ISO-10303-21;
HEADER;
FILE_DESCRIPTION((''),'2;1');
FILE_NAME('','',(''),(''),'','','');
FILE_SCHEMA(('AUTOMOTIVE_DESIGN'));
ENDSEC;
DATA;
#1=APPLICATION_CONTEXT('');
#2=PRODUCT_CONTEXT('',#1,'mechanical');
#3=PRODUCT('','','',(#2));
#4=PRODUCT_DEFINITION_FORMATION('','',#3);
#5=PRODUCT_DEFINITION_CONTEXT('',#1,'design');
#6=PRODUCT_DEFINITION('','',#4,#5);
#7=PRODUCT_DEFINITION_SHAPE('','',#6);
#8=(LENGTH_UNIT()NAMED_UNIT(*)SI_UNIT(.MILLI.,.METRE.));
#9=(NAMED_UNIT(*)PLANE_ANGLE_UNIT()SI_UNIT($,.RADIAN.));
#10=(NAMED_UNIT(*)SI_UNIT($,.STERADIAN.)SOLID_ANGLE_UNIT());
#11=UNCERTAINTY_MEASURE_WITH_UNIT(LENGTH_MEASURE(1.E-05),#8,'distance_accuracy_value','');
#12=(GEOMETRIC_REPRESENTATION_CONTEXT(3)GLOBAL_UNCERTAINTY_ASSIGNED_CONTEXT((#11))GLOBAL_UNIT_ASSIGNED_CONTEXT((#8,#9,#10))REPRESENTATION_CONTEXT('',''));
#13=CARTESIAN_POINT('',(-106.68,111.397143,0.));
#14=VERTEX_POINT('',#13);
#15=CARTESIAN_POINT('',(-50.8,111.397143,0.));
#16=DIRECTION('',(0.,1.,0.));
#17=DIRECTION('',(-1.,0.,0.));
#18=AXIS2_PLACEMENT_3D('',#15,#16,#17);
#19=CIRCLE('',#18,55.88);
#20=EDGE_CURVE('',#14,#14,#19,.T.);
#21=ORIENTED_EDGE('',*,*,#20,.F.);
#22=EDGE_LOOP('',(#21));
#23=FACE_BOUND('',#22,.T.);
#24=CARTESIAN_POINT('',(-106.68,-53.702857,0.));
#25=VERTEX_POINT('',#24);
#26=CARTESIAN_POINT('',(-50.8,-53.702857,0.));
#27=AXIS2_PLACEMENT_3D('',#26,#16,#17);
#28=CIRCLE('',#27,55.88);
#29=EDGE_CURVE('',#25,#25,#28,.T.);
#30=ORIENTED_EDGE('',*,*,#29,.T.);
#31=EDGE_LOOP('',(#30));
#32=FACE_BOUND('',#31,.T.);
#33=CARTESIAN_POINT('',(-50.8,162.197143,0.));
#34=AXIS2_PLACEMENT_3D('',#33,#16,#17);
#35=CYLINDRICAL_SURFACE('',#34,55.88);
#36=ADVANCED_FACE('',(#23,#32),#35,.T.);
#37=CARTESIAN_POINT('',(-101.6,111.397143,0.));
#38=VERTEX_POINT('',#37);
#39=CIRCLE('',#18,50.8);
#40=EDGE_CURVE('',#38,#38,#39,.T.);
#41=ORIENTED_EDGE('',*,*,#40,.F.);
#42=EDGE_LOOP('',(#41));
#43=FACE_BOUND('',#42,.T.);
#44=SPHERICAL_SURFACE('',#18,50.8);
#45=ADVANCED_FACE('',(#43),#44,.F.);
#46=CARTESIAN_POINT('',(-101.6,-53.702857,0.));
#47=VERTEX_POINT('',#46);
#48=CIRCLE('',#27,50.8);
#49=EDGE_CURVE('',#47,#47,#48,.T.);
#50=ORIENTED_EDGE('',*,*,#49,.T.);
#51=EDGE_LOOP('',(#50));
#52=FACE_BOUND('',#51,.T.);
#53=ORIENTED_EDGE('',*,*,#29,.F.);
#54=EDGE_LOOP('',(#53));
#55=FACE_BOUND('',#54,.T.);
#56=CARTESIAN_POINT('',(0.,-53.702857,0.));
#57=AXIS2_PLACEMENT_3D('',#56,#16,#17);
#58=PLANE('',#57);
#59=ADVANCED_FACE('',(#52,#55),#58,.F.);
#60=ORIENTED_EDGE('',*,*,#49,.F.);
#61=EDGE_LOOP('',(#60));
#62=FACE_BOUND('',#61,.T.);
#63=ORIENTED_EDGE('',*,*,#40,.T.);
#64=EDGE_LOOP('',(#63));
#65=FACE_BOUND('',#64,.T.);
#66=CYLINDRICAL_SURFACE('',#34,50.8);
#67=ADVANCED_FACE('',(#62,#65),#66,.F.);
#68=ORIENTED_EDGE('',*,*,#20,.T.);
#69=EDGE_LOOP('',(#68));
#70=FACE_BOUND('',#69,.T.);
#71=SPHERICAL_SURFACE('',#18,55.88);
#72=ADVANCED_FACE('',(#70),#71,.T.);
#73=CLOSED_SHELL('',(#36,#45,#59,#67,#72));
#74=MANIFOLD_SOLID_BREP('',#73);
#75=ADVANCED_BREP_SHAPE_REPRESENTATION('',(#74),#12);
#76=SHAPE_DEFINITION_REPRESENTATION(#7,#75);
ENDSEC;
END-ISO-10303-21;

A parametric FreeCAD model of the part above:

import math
import FreeCAD as App
import Part
import Sketcher
Q = App.Units.Quantity


def faces_at(feature, points):
    """Names of the faces that lie closest to the given points."""
    faces = feature.Shape.Faces
    near = lambda p: min(range(len(faces)), key=lambda i: faces[i].distToShape(Part.Vertex(*p))[0])
    return sorted({f"Face{near(p) + 1}" for p in points})

doc = App.newDocument("Part")
params = doc.addObject("Spreadsheet::Sheet", "Params")
for row, (alias, value) in enumerate([
    ("sketch1_radius", "2 in"),
    ("sketch1_height", "6.5 in"),
    ("revolution_angle", "360 deg"),
    ("thickness_wall", "0.2 in"),
], start=1):
    params.set(f"A{row}", alias)
    params.set(f"B{row}", "=" + value)
    params.setAlias(f"B{row}", alias)

body = doc.addObject("PartDesign::Body", "Body")

# Sketch on XY plane
sketch1 = body.newObject("Sketcher::SketchObject", "Sketch")
sketch1.AttachmentSupport = (doc.getObject("XY_Plane"), [""])
sketch1.MapMode = "FlatFace"
sketch1.addGeometry([
    Part.ArcOfCircle(Part.Circle(App.Vector(-50.8, 111.397143, 0), App.Vector(0, 0, 1), 50.8), math.radians(90), math.radians(180)),
    Part.LineSegment(App.Vector(-101.6, 111.397143, 0), App.Vector(-101.6, -53.702857, 0)),
    Part.LineSegment(App.Vector(-101.6, -53.702857, 0), App.Vector(-50.8, -53.702857, 0)),
    Part.LineSegment(App.Vector(-50.8, -53.702857, 0), App.Vector(-50.8, 162.197143, 0)),
], False)
sketch1.addGeometry(Part.LineSegment(App.Vector(-50.8, 162.197143, 0), App.Vector(-50.8, -53.702857, 0)), True)  # axis
sketch1.addConstraint([
    Sketcher.Constraint("Tangent", 0, 2, 1, 1),
    Sketcher.Constraint("Coincident", 1, 2, 2, 1),
    Sketcher.Constraint("Coincident", 2, 2, 3, 1),
    Sketcher.Constraint("Coincident", 3, 2, 0, 1),
    Sketcher.Constraint("Vertical", 1),
    Sketcher.Constraint("Horizontal", 2),
    Sketcher.Constraint("Vertical", 3),
    Sketcher.Constraint("Vertical", 4),
    Sketcher.Constraint("Coincident", 4, 1, 3, 2),
    Sketcher.Constraint("Horizontal", 1, 2, 4, 2),
    Sketcher.Constraint("Vertical", 0, 3, 2, 2),
    Sketcher.Constraint("Radius", 0, Q("2 in")),
    Sketcher.Constraint("DistanceY", 1, 2, 1, 1, Q("6.5 in")),
    Sketcher.Constraint("DistanceX", 0, 3, -1, 1, Q("2 in")),
    Sketcher.Constraint("DistanceY", -1, 1, 0, 3, Q("111.397143 mm")),
])
sketch1.setExpression("Constraints[11]", "Params.sketch1_radius")
sketch1.setExpression("Constraints[12]", "Params.sketch1_height")
revolution = body.newObject("PartDesign::Revolution", "Revolution")
revolution.Profile = sketch1
revolution.ReferenceAxis = (sketch1, ["Axis0"])
revolution.setExpression("Angle", "Params.revolution_angle")
doc.recompute()

thickness = body.newObject("PartDesign::Thickness", "Thickness")
thickness.Base = (revolution, faces_at(revolution, [(-50.8, -53.703, 0)]))
thickness.setExpression("Value", "Params.thickness_wall")
thickness.Reversed = False
thickness.Join = "Intersection"

doc.recompute()
